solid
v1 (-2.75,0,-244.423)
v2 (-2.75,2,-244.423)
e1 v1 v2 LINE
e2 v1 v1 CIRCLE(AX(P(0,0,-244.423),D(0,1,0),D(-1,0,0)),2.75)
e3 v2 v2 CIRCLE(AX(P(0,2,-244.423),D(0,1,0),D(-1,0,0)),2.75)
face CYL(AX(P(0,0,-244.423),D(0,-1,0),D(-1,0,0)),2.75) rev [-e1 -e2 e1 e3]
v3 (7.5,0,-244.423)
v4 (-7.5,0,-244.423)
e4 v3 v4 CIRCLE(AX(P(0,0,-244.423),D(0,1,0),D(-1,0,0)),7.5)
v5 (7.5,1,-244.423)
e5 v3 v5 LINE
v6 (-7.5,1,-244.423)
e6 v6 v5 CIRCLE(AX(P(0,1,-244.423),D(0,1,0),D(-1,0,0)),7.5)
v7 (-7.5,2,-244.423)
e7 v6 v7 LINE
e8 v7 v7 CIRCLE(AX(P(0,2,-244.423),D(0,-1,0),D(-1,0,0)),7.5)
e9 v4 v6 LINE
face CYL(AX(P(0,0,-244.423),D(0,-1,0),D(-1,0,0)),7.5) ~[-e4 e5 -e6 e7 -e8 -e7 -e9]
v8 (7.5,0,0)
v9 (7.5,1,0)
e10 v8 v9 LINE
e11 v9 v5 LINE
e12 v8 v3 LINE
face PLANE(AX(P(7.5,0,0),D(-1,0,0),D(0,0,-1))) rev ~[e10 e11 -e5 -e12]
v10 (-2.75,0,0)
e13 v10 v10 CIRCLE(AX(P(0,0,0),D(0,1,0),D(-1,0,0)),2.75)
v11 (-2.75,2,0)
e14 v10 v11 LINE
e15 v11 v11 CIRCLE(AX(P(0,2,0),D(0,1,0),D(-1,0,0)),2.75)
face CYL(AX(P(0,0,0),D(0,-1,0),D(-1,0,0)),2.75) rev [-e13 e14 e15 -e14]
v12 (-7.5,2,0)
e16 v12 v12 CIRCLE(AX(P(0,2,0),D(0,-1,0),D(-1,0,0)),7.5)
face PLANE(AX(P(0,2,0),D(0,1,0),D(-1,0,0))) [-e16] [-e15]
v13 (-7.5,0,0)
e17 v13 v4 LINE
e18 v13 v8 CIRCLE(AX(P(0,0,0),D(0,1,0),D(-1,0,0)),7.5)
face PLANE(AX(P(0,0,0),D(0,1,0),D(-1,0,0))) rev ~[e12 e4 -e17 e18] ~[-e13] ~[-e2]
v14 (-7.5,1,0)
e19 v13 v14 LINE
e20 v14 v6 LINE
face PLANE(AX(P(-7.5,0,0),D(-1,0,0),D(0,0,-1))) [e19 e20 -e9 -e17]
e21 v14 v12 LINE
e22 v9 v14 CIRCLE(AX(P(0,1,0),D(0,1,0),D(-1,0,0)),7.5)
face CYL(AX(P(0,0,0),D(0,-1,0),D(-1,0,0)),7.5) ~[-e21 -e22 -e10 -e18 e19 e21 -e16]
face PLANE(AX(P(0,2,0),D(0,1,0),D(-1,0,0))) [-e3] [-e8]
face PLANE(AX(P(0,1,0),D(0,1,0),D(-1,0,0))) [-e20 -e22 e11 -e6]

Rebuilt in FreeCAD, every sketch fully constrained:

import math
import FreeCAD as App
import Part
import Sketcher

V = App.Vector

doc = App.newDocument("Part")
body = doc.addObject("PartDesign::Body", "Body")

# Sketch on XZ plane
sketch1 = body.newObject("Sketcher::SketchObject", "Sketch")
sketch1.AttachmentSupport = (doc.getObject("XZ_Plane"), [""])
sketch1.MapMode = "FlatFace"
sketch1.addGeometry([
    Part.LineSegment(V(-7.5, -244.423, 0), V(-7.5, 0, 0)),
    Part.ArcOfCircle(Part.Circle(V(0, 0, 0), V(0, 0, 1), 7.5), math.radians(180), math.radians(360)),
    Part.LineSegment(V(7.5, 0, 0), V(7.5, -244.423, 0)),
    Part.ArcOfCircle(Part.Circle(V(0, -244.423, 0), V(0, 0, 1), 7.5), math.radians(0), math.radians(180)),
], False)
sketch1.addConstraint([
    Sketcher.Constraint("Tangent", 0, 2, 1, 1),
    Sketcher.Constraint("Tangent", 1, 2, 2, 1),
    Sketcher.Constraint("Tangent", 2, 2, 3, 1),
    Sketcher.Constraint("Tangent", 3, 2, 0, 1),
    Sketcher.Constraint("Vertical", 0),
    Sketcher.Constraint("Vertical", 2),
    Sketcher.Constraint("Coincident", 1, 3, -1, 1),
    Sketcher.Constraint("Radius", 1, 7.5),
    Sketcher.Constraint("DistanceY", 0, 1, 0, 2, 244.423),
])
pad1 = body.newObject("PartDesign::Pad", "Pad")
pad1.Profile = sketch1
pad1.Length = 1
pad1.Reversed = True

# Sketch on XZ plane
sketch2 = body.newObject("Sketcher::SketchObject", "Sketch001")
sketch2.AttachmentSupport = (doc.getObject("XZ_Plane"), [""])
sketch2.MapMode = "FlatFace"
sketch2.addGeometry([
    Part.Circle(V(0, 0, 0), V(0, 0, 1), 7.5),
    Part.Circle(V(0, 0, 0), V(0, 0, 1), 2.75),
    Part.Circle(V(0, -244.423, 0), V(0, 0, 1), 7.5),
    Part.Circle(V(0, -244.423, 0), V(0, 0, 1), 2.75),
], False)
sketch2.addConstraint([
    Sketcher.Constraint("Coincident", 0, 3, -1, 1),
    Sketcher.Constraint("Coincident", 1, 3, -1, 1),
    Sketcher.Constraint("Coincident", 3, 3, 2, 3),
    Sketcher.Constraint("Equal", 0, 2),
    Sketcher.Constraint("Equal", 1, 3),
    Sketcher.Constraint("PointOnObject", 2, 3, -2),
    Sketcher.Constraint("Diameter", 0, 15.0),
    Sketcher.Constraint("Diameter", 1, 5.5),
    Sketcher.Constraint("DistanceY", 2, 3, -1, 1, 244.423),
])
pad2 = body.newObject("PartDesign::Pad", "Pad001")
pad2.Profile = sketch2
pad2.Length = 2
pad2.Reversed = True

doc.recompute()
